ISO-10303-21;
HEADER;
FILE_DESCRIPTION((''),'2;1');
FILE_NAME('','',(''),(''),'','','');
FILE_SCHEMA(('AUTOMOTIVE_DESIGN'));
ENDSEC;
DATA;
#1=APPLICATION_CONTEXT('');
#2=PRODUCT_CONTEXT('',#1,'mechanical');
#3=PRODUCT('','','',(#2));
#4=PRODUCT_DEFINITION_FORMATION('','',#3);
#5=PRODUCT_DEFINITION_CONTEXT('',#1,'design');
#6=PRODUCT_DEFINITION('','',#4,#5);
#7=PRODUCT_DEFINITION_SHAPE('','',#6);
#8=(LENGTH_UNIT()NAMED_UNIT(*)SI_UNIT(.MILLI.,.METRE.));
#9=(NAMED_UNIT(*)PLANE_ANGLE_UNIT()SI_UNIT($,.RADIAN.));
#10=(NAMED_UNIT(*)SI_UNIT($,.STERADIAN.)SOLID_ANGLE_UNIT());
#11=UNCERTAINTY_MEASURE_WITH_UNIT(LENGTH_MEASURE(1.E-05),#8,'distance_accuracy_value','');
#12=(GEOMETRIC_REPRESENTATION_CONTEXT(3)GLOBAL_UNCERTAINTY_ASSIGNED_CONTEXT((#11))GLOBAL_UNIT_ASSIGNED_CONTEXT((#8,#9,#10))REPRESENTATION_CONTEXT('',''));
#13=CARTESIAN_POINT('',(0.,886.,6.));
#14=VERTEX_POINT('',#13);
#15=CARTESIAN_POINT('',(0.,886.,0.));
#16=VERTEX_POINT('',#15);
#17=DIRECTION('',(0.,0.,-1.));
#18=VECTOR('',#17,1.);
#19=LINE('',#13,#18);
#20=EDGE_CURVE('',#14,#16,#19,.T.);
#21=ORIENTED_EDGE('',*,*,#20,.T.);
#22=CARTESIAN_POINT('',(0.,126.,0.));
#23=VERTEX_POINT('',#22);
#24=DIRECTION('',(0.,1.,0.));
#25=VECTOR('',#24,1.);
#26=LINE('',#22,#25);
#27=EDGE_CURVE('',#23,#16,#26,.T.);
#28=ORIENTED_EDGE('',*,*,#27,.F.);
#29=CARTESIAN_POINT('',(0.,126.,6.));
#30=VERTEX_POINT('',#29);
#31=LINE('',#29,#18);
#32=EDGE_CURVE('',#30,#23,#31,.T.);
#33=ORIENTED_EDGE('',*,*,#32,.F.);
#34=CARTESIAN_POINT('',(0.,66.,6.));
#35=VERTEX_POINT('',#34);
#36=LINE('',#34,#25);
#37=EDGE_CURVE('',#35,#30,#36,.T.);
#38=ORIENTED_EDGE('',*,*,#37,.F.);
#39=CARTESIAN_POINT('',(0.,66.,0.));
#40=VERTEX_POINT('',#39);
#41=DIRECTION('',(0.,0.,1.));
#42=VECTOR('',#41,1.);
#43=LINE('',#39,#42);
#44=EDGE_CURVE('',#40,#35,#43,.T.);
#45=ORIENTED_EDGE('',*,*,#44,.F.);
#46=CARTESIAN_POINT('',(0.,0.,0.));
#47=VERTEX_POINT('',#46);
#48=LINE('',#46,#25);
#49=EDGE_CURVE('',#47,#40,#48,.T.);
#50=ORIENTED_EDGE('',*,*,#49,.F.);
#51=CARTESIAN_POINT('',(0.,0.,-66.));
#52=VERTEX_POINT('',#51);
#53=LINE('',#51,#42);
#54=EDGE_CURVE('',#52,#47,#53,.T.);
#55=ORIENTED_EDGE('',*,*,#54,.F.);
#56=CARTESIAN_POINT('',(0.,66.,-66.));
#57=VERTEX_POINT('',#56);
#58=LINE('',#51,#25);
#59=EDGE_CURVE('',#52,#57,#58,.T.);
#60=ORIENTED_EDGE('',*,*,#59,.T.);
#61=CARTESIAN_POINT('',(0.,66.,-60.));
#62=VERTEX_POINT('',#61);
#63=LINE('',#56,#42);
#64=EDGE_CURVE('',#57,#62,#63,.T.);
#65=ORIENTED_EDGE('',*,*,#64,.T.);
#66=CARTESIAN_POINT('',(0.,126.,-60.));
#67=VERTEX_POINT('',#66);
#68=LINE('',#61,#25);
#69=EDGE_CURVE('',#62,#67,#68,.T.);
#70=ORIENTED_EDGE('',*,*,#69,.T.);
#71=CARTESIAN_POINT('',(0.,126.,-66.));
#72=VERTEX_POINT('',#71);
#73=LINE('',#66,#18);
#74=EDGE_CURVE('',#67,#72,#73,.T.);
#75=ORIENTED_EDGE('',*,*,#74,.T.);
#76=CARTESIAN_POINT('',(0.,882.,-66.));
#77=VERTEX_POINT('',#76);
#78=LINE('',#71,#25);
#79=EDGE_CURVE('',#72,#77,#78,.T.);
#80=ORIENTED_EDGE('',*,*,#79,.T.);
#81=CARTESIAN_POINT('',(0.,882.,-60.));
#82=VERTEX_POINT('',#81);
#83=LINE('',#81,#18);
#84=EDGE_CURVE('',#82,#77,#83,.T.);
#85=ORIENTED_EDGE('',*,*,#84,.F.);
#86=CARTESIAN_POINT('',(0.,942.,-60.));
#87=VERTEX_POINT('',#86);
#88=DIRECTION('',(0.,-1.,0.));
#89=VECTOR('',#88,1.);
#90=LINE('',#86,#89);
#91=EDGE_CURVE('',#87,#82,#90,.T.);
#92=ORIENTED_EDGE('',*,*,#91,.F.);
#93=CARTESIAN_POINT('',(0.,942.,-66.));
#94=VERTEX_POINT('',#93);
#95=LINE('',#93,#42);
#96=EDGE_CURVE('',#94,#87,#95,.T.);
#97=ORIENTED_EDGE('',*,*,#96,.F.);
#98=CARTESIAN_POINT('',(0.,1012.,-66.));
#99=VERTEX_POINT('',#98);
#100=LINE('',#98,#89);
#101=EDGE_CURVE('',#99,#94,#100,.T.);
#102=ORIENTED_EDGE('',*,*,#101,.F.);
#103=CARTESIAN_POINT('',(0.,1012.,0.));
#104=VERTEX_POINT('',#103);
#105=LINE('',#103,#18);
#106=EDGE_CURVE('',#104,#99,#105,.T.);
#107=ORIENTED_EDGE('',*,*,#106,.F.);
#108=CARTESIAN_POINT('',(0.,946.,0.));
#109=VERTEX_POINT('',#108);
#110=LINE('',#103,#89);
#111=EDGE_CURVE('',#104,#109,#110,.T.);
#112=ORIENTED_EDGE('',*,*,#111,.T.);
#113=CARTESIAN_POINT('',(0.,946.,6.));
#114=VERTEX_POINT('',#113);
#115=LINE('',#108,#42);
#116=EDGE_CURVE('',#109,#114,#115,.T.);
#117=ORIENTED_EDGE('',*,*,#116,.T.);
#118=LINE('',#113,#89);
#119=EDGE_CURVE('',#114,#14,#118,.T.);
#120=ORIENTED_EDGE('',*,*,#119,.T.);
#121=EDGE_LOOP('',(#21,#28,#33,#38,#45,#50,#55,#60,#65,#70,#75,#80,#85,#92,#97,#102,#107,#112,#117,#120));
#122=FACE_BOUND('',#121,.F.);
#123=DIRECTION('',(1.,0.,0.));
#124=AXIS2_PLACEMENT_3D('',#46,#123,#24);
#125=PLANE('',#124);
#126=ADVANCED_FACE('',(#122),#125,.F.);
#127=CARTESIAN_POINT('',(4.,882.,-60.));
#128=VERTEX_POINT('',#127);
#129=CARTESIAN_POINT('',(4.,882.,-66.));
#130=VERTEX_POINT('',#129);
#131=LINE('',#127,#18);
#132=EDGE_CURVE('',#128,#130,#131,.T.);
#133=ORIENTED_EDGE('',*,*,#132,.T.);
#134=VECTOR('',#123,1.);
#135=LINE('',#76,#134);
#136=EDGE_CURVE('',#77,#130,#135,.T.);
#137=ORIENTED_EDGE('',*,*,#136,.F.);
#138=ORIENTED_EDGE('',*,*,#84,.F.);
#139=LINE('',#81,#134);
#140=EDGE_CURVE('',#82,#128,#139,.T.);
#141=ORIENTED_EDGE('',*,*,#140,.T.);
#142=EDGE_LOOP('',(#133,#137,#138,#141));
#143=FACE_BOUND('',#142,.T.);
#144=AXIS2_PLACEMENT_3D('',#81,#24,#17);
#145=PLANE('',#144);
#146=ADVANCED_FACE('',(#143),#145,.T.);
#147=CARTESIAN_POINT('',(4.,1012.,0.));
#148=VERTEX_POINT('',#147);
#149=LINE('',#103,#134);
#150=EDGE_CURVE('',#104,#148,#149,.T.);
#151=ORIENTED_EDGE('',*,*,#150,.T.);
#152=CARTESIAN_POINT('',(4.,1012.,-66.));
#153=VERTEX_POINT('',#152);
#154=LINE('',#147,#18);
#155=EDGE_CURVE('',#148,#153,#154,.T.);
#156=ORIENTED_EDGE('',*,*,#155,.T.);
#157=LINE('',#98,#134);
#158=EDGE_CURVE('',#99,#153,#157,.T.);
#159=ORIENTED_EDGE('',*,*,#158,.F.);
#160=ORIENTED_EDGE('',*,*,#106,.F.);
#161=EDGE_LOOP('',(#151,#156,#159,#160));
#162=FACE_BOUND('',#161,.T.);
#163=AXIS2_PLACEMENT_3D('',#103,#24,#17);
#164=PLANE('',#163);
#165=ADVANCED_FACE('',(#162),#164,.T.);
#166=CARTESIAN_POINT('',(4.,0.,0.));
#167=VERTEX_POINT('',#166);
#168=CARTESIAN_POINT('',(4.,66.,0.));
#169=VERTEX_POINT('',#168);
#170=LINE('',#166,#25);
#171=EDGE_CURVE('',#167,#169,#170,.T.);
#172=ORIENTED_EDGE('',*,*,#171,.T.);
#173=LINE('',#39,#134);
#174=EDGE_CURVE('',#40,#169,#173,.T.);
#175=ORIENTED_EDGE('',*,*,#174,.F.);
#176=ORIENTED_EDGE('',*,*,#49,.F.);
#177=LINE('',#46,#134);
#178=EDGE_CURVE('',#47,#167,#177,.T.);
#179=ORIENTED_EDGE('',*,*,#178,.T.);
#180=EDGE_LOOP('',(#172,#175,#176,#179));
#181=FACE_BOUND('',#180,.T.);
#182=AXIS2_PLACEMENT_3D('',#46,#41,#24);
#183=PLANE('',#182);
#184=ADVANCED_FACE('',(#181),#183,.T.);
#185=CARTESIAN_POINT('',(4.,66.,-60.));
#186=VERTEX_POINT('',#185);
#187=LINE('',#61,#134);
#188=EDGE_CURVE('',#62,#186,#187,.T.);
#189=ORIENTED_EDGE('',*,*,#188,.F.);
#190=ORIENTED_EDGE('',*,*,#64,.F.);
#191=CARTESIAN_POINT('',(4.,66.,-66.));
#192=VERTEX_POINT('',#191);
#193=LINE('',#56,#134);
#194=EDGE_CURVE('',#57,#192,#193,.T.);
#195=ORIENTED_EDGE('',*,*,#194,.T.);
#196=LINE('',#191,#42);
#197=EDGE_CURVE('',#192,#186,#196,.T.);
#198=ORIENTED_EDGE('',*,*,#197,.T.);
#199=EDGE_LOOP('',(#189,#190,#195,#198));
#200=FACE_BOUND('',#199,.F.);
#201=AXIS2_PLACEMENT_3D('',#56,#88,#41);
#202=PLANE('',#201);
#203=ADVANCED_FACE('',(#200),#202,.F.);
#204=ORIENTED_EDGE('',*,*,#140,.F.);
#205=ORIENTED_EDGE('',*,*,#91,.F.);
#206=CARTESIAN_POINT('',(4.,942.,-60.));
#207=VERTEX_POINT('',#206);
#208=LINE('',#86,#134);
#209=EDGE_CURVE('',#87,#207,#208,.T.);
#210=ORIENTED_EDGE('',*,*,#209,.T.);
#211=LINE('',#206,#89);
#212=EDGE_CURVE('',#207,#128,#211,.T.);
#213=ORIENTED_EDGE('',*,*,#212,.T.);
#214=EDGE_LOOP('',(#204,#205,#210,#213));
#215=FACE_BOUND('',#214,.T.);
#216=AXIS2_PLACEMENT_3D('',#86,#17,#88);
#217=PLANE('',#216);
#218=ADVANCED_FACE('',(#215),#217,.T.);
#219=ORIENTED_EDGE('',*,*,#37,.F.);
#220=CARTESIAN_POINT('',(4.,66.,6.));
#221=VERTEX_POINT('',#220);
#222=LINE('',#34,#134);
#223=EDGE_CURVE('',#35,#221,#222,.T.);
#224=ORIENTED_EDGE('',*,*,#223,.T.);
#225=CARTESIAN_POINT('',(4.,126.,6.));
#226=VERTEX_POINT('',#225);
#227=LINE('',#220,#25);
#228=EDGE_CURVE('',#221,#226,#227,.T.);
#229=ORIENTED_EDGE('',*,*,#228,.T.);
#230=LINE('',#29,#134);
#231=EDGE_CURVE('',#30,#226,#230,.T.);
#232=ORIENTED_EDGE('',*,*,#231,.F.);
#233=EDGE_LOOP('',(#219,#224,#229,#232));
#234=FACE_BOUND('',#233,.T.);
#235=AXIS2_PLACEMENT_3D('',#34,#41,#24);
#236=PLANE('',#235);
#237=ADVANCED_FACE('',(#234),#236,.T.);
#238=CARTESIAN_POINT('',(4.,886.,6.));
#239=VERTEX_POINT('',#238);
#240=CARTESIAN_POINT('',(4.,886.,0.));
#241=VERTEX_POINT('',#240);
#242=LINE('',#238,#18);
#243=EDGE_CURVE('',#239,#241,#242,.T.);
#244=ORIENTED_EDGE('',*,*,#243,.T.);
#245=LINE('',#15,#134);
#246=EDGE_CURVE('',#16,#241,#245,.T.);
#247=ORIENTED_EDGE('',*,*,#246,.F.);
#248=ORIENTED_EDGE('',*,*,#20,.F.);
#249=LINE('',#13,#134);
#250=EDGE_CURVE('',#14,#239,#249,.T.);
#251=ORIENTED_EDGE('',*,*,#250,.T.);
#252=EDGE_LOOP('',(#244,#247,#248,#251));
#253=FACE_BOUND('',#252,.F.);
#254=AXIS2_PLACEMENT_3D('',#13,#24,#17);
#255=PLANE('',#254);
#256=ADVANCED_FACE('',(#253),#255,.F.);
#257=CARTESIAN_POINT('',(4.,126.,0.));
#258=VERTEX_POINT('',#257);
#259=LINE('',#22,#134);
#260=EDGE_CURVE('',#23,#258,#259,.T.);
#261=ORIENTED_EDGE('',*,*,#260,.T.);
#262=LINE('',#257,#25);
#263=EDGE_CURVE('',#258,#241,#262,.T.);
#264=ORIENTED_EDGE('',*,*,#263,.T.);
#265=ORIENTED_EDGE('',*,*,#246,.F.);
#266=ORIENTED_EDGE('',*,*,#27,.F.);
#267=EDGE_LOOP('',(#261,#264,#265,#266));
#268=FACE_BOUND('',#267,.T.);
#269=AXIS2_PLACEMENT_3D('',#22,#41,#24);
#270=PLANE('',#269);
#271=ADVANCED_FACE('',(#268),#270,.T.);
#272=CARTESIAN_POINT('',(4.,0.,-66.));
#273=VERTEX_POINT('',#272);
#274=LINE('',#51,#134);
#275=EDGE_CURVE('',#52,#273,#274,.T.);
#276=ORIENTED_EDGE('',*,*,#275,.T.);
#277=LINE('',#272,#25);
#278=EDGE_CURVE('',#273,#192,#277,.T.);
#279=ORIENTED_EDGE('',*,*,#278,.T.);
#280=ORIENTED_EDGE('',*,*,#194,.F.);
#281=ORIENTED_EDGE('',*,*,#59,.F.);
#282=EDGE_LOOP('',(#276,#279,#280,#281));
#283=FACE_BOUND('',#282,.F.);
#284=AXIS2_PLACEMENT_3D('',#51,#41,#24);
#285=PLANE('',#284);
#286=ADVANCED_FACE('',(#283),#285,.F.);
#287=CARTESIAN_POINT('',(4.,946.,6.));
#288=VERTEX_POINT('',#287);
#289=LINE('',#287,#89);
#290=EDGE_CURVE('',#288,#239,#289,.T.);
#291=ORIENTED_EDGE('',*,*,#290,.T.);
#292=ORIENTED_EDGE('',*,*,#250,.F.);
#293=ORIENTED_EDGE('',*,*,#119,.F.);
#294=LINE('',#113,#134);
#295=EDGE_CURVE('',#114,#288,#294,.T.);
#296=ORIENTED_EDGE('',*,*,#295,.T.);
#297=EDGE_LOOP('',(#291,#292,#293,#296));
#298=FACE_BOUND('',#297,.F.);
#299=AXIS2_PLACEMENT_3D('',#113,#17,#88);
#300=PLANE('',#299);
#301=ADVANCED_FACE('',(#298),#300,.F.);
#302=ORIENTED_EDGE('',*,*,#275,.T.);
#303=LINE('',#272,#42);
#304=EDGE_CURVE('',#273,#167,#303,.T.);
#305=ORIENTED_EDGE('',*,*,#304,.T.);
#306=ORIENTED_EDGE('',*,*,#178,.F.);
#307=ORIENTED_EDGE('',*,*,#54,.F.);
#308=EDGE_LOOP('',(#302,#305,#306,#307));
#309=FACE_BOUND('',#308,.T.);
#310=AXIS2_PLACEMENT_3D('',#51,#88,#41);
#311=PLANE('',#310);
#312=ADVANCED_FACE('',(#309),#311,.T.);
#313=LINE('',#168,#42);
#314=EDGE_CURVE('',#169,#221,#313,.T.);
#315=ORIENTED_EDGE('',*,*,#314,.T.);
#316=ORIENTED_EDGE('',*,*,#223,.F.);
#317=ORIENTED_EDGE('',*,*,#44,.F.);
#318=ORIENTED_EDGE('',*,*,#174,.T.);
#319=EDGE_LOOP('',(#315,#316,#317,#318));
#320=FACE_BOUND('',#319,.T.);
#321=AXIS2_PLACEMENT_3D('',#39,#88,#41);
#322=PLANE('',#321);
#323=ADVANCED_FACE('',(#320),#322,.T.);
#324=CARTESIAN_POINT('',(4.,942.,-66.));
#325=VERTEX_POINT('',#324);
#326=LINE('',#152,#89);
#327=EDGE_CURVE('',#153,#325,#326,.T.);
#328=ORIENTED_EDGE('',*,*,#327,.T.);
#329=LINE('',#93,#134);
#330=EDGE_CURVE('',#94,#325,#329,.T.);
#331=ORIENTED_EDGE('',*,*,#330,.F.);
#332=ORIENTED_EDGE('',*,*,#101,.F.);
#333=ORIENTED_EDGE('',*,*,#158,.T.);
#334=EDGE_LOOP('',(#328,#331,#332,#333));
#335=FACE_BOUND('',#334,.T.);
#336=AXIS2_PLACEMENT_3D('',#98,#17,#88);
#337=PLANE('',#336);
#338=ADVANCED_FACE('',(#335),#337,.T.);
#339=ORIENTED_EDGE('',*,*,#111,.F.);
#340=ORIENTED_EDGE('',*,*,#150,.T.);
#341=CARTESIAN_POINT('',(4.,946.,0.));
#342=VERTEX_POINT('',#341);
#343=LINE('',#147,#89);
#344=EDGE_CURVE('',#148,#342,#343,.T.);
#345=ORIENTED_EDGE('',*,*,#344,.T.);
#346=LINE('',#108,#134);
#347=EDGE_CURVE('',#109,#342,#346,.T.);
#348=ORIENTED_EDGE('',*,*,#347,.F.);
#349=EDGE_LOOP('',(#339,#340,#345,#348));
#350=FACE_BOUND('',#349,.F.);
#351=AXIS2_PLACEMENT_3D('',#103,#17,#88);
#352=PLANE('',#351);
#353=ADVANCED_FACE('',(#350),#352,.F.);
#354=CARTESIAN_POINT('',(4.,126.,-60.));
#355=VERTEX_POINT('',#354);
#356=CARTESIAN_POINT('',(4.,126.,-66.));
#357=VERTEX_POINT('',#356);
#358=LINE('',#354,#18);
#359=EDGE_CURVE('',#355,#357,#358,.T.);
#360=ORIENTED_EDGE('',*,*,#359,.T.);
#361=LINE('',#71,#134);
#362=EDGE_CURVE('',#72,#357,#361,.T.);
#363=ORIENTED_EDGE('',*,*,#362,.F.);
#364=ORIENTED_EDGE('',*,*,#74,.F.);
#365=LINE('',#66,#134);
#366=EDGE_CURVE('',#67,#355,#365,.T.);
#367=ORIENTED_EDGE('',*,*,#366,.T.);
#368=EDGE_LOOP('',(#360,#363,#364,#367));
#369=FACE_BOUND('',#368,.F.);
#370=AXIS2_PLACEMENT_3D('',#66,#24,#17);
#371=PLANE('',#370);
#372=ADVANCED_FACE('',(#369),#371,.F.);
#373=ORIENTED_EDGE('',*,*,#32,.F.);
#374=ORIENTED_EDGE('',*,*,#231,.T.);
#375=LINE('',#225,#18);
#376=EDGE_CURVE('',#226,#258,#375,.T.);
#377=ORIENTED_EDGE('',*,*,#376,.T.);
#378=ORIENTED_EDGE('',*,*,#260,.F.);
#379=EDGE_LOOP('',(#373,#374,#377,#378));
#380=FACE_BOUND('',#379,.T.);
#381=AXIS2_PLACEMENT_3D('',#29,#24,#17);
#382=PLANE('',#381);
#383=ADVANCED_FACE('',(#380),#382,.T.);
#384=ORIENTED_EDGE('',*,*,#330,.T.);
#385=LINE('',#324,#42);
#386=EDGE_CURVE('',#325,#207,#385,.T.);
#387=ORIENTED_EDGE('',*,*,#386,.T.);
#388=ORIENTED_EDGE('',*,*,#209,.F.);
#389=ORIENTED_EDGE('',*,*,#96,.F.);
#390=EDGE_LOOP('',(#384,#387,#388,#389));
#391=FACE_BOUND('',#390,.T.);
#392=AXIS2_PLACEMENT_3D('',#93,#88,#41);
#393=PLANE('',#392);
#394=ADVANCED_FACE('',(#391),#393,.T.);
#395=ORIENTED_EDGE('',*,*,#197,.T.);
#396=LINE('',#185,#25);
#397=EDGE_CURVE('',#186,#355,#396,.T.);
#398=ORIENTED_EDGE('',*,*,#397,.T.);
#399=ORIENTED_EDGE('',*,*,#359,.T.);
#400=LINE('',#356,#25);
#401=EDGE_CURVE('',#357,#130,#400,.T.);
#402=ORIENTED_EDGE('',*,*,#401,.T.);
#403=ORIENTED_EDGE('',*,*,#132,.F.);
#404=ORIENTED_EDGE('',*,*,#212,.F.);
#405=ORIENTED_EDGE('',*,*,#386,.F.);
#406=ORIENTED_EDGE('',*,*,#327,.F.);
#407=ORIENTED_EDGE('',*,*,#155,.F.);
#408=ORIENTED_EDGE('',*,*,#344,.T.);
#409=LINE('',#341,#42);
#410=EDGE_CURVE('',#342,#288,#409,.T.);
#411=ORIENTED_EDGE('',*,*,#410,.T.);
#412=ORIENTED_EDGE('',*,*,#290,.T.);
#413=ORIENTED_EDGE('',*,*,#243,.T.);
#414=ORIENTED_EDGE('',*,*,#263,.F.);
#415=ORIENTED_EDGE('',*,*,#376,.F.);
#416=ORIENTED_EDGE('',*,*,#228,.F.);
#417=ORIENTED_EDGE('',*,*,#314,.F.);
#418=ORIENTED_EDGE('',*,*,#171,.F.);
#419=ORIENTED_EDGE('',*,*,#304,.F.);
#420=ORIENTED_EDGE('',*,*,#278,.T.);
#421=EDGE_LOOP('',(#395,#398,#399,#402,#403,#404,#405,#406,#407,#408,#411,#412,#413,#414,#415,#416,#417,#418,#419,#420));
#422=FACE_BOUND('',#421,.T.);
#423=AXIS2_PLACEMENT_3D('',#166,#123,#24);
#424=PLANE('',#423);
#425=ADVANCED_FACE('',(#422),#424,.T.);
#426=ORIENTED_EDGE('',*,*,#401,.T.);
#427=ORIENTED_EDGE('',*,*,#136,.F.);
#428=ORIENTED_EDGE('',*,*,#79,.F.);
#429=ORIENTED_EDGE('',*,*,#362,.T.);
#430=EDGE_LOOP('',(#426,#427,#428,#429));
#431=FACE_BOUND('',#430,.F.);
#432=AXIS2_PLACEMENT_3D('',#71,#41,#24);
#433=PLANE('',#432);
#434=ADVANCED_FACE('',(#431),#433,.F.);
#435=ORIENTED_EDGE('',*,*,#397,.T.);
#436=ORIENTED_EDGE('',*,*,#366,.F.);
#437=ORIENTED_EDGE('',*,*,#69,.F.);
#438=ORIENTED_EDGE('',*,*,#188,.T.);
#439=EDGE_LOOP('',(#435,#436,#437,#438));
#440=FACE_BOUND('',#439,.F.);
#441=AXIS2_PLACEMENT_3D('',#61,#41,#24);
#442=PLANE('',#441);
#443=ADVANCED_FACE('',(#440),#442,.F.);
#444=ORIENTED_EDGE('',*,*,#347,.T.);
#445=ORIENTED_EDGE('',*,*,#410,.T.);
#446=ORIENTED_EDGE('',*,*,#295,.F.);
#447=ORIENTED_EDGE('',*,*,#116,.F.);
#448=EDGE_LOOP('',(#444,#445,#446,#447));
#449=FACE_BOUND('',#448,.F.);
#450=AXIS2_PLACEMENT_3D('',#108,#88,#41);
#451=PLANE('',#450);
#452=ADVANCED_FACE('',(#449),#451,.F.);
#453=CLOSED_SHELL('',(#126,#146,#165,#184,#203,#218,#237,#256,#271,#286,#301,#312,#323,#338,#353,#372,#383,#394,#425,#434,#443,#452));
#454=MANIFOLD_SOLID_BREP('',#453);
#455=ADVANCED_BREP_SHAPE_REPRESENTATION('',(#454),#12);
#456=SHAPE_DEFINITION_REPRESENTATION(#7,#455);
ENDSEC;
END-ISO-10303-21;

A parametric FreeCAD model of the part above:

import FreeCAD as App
import Part
import Sketcher

V = App.Vector


def add_polygon(sketch, points):
    """Adds a closed chain of lines whose ends are joined by coincident constraints."""
    first, n = sketch.GeometryCount, len(points)
    for a, b in zip(points, points[1:] + points[:1]):
        sketch.addGeometry(Part.LineSegment(App.Vector(*a, 0), App.Vector(*b, 0)), False)
    for i in range(n):
        sketch.addConstraint(Sketcher.Constraint("Coincident", first + i, 2, first + (i + 1) % n, 1))

doc = App.newDocument("Part")
body = doc.addObject("PartDesign::Body", "Body")

# Sketch on YZ plane
sketch1 = body.newObject("Sketcher::SketchObject", "Sketch")
sketch1.AttachmentSupport = (doc.getObject("YZ_Plane"), [""])
sketch1.MapMode = "FlatFace"
add_polygon(sketch1, [(1012, -66), (1012, 0), (946, 0), (946, 6), (886, 6), (886, 0), (126, 0), (126, 6), (66, 6), (66, 0), (0, 0), (0, -66), (66, -66), (66, -60), (126, -60), (126, -66), (882, -66), (882, -60), (942, -60), (942, -66)])  # lines 0-19
sketch1.addConstraint(Sketcher.Constraint("Vertical", 0))
sketch1.addConstraint(Sketcher.Constraint("Horizontal", 1))
sketch1.addConstraint(Sketcher.Constraint("Vertical", 2))
sketch1.addConstraint(Sketcher.Constraint("Horizontal", 3))
sketch1.addConstraint(Sketcher.Constraint("Vertical", 4))
sketch1.addConstraint(Sketcher.Constraint("Horizontal", 5))
sketch1.addConstraint(Sketcher.Constraint("Vertical", 6))
sketch1.addConstraint(Sketcher.Constraint("Horizontal", 7))
sketch1.addConstraint(Sketcher.Constraint("Vertical", 8))
sketch1.addConstraint(Sketcher.Constraint("Horizontal", 9))
sketch1.addConstraint(Sketcher.Constraint("Vertical", 10))
sketch1.addConstraint(Sketcher.Constraint("Horizontal", 11))
sketch1.addConstraint(Sketcher.Constraint("Vertical", 12))
sketch1.addConstraint(Sketcher.Constraint("Horizontal", 13))
sketch1.addConstraint(Sketcher.Constraint("Vertical", 14))
sketch1.addConstraint(Sketcher.Constraint("Horizontal", 15))
sketch1.addConstraint(Sketcher.Constraint("Vertical", 16))
sketch1.addConstraint(Sketcher.Constraint("Horizontal", 17))
sketch1.addConstraint(Sketcher.Constraint("Vertical", 18))
sketch1.addConstraint(Sketcher.Constraint("Horizontal", 19))
sketch1.addConstraint(Sketcher.Constraint("Coincident", 9, 2, -1, 1))
sketch1.addConstraint(Sketcher.Constraint("PointOnObject", 0, 2, -1))
sketch1.addConstraint(Sketcher.Constraint("PointOnObject", 4, 2, -1))
sketch1.addConstraint(Sketcher.Constraint("Horizontal", 3, 2, 6, 2))
sketch1.addConstraint(Sketcher.Constraint("Horizontal", 11, 2, 14, 2))
sketch1.addConstraint(Sketcher.Constraint("Horizontal", 13, 2, 16, 2))
sketch1.addConstraint(Sketcher.Constraint("Horizontal", 15, 2, 18, 2))
sketch1.addConstraint(Sketcher.Constraint("Vertical", 8, 2, 11, 2))
sketch1.addConstraint(Sketcher.Constraint("Vertical", 6, 2, 13, 2))
sketch1.addConstraint(Sketcher.Constraint("Equal", 3, 7))
sketch1.addConstraint(Sketcher.Constraint("Equal", 1, 9))
sketch1.addConstraint(Sketcher.Constraint("Equal", 13, 17))
sketch1.addConstraint(Sketcher.Constraint("Equal", 11, 0))
sketch1.addConstraint(Sketcher.Constraint("Equal", 8, 12))
sketch1.addConstraint(Sketcher.Constraint("DistanceX", 1, 2, 1, 1, 66.0))
sketch1.addConstraint(Sketcher.Constraint("DistanceX", 3, 2, 3, 1, 60.0))
sketch1.addConstraint(Sketcher.Constraint("DistanceY", 2, 1, 2, 2, 6.0))
sketch1.addConstraint(Sketcher.Constraint("DistanceX", -1, 1, 0, 2, 1012.0))
sketch1.addConstraint(Sketcher.Constraint("DistanceX", 15, 1, 15, 2, 756.0))
pad1 = body.newObject("PartDesign::Pad", "Pad")
pad1.Profile = sketch1
pad1.Length = 4

doc.recompute()
